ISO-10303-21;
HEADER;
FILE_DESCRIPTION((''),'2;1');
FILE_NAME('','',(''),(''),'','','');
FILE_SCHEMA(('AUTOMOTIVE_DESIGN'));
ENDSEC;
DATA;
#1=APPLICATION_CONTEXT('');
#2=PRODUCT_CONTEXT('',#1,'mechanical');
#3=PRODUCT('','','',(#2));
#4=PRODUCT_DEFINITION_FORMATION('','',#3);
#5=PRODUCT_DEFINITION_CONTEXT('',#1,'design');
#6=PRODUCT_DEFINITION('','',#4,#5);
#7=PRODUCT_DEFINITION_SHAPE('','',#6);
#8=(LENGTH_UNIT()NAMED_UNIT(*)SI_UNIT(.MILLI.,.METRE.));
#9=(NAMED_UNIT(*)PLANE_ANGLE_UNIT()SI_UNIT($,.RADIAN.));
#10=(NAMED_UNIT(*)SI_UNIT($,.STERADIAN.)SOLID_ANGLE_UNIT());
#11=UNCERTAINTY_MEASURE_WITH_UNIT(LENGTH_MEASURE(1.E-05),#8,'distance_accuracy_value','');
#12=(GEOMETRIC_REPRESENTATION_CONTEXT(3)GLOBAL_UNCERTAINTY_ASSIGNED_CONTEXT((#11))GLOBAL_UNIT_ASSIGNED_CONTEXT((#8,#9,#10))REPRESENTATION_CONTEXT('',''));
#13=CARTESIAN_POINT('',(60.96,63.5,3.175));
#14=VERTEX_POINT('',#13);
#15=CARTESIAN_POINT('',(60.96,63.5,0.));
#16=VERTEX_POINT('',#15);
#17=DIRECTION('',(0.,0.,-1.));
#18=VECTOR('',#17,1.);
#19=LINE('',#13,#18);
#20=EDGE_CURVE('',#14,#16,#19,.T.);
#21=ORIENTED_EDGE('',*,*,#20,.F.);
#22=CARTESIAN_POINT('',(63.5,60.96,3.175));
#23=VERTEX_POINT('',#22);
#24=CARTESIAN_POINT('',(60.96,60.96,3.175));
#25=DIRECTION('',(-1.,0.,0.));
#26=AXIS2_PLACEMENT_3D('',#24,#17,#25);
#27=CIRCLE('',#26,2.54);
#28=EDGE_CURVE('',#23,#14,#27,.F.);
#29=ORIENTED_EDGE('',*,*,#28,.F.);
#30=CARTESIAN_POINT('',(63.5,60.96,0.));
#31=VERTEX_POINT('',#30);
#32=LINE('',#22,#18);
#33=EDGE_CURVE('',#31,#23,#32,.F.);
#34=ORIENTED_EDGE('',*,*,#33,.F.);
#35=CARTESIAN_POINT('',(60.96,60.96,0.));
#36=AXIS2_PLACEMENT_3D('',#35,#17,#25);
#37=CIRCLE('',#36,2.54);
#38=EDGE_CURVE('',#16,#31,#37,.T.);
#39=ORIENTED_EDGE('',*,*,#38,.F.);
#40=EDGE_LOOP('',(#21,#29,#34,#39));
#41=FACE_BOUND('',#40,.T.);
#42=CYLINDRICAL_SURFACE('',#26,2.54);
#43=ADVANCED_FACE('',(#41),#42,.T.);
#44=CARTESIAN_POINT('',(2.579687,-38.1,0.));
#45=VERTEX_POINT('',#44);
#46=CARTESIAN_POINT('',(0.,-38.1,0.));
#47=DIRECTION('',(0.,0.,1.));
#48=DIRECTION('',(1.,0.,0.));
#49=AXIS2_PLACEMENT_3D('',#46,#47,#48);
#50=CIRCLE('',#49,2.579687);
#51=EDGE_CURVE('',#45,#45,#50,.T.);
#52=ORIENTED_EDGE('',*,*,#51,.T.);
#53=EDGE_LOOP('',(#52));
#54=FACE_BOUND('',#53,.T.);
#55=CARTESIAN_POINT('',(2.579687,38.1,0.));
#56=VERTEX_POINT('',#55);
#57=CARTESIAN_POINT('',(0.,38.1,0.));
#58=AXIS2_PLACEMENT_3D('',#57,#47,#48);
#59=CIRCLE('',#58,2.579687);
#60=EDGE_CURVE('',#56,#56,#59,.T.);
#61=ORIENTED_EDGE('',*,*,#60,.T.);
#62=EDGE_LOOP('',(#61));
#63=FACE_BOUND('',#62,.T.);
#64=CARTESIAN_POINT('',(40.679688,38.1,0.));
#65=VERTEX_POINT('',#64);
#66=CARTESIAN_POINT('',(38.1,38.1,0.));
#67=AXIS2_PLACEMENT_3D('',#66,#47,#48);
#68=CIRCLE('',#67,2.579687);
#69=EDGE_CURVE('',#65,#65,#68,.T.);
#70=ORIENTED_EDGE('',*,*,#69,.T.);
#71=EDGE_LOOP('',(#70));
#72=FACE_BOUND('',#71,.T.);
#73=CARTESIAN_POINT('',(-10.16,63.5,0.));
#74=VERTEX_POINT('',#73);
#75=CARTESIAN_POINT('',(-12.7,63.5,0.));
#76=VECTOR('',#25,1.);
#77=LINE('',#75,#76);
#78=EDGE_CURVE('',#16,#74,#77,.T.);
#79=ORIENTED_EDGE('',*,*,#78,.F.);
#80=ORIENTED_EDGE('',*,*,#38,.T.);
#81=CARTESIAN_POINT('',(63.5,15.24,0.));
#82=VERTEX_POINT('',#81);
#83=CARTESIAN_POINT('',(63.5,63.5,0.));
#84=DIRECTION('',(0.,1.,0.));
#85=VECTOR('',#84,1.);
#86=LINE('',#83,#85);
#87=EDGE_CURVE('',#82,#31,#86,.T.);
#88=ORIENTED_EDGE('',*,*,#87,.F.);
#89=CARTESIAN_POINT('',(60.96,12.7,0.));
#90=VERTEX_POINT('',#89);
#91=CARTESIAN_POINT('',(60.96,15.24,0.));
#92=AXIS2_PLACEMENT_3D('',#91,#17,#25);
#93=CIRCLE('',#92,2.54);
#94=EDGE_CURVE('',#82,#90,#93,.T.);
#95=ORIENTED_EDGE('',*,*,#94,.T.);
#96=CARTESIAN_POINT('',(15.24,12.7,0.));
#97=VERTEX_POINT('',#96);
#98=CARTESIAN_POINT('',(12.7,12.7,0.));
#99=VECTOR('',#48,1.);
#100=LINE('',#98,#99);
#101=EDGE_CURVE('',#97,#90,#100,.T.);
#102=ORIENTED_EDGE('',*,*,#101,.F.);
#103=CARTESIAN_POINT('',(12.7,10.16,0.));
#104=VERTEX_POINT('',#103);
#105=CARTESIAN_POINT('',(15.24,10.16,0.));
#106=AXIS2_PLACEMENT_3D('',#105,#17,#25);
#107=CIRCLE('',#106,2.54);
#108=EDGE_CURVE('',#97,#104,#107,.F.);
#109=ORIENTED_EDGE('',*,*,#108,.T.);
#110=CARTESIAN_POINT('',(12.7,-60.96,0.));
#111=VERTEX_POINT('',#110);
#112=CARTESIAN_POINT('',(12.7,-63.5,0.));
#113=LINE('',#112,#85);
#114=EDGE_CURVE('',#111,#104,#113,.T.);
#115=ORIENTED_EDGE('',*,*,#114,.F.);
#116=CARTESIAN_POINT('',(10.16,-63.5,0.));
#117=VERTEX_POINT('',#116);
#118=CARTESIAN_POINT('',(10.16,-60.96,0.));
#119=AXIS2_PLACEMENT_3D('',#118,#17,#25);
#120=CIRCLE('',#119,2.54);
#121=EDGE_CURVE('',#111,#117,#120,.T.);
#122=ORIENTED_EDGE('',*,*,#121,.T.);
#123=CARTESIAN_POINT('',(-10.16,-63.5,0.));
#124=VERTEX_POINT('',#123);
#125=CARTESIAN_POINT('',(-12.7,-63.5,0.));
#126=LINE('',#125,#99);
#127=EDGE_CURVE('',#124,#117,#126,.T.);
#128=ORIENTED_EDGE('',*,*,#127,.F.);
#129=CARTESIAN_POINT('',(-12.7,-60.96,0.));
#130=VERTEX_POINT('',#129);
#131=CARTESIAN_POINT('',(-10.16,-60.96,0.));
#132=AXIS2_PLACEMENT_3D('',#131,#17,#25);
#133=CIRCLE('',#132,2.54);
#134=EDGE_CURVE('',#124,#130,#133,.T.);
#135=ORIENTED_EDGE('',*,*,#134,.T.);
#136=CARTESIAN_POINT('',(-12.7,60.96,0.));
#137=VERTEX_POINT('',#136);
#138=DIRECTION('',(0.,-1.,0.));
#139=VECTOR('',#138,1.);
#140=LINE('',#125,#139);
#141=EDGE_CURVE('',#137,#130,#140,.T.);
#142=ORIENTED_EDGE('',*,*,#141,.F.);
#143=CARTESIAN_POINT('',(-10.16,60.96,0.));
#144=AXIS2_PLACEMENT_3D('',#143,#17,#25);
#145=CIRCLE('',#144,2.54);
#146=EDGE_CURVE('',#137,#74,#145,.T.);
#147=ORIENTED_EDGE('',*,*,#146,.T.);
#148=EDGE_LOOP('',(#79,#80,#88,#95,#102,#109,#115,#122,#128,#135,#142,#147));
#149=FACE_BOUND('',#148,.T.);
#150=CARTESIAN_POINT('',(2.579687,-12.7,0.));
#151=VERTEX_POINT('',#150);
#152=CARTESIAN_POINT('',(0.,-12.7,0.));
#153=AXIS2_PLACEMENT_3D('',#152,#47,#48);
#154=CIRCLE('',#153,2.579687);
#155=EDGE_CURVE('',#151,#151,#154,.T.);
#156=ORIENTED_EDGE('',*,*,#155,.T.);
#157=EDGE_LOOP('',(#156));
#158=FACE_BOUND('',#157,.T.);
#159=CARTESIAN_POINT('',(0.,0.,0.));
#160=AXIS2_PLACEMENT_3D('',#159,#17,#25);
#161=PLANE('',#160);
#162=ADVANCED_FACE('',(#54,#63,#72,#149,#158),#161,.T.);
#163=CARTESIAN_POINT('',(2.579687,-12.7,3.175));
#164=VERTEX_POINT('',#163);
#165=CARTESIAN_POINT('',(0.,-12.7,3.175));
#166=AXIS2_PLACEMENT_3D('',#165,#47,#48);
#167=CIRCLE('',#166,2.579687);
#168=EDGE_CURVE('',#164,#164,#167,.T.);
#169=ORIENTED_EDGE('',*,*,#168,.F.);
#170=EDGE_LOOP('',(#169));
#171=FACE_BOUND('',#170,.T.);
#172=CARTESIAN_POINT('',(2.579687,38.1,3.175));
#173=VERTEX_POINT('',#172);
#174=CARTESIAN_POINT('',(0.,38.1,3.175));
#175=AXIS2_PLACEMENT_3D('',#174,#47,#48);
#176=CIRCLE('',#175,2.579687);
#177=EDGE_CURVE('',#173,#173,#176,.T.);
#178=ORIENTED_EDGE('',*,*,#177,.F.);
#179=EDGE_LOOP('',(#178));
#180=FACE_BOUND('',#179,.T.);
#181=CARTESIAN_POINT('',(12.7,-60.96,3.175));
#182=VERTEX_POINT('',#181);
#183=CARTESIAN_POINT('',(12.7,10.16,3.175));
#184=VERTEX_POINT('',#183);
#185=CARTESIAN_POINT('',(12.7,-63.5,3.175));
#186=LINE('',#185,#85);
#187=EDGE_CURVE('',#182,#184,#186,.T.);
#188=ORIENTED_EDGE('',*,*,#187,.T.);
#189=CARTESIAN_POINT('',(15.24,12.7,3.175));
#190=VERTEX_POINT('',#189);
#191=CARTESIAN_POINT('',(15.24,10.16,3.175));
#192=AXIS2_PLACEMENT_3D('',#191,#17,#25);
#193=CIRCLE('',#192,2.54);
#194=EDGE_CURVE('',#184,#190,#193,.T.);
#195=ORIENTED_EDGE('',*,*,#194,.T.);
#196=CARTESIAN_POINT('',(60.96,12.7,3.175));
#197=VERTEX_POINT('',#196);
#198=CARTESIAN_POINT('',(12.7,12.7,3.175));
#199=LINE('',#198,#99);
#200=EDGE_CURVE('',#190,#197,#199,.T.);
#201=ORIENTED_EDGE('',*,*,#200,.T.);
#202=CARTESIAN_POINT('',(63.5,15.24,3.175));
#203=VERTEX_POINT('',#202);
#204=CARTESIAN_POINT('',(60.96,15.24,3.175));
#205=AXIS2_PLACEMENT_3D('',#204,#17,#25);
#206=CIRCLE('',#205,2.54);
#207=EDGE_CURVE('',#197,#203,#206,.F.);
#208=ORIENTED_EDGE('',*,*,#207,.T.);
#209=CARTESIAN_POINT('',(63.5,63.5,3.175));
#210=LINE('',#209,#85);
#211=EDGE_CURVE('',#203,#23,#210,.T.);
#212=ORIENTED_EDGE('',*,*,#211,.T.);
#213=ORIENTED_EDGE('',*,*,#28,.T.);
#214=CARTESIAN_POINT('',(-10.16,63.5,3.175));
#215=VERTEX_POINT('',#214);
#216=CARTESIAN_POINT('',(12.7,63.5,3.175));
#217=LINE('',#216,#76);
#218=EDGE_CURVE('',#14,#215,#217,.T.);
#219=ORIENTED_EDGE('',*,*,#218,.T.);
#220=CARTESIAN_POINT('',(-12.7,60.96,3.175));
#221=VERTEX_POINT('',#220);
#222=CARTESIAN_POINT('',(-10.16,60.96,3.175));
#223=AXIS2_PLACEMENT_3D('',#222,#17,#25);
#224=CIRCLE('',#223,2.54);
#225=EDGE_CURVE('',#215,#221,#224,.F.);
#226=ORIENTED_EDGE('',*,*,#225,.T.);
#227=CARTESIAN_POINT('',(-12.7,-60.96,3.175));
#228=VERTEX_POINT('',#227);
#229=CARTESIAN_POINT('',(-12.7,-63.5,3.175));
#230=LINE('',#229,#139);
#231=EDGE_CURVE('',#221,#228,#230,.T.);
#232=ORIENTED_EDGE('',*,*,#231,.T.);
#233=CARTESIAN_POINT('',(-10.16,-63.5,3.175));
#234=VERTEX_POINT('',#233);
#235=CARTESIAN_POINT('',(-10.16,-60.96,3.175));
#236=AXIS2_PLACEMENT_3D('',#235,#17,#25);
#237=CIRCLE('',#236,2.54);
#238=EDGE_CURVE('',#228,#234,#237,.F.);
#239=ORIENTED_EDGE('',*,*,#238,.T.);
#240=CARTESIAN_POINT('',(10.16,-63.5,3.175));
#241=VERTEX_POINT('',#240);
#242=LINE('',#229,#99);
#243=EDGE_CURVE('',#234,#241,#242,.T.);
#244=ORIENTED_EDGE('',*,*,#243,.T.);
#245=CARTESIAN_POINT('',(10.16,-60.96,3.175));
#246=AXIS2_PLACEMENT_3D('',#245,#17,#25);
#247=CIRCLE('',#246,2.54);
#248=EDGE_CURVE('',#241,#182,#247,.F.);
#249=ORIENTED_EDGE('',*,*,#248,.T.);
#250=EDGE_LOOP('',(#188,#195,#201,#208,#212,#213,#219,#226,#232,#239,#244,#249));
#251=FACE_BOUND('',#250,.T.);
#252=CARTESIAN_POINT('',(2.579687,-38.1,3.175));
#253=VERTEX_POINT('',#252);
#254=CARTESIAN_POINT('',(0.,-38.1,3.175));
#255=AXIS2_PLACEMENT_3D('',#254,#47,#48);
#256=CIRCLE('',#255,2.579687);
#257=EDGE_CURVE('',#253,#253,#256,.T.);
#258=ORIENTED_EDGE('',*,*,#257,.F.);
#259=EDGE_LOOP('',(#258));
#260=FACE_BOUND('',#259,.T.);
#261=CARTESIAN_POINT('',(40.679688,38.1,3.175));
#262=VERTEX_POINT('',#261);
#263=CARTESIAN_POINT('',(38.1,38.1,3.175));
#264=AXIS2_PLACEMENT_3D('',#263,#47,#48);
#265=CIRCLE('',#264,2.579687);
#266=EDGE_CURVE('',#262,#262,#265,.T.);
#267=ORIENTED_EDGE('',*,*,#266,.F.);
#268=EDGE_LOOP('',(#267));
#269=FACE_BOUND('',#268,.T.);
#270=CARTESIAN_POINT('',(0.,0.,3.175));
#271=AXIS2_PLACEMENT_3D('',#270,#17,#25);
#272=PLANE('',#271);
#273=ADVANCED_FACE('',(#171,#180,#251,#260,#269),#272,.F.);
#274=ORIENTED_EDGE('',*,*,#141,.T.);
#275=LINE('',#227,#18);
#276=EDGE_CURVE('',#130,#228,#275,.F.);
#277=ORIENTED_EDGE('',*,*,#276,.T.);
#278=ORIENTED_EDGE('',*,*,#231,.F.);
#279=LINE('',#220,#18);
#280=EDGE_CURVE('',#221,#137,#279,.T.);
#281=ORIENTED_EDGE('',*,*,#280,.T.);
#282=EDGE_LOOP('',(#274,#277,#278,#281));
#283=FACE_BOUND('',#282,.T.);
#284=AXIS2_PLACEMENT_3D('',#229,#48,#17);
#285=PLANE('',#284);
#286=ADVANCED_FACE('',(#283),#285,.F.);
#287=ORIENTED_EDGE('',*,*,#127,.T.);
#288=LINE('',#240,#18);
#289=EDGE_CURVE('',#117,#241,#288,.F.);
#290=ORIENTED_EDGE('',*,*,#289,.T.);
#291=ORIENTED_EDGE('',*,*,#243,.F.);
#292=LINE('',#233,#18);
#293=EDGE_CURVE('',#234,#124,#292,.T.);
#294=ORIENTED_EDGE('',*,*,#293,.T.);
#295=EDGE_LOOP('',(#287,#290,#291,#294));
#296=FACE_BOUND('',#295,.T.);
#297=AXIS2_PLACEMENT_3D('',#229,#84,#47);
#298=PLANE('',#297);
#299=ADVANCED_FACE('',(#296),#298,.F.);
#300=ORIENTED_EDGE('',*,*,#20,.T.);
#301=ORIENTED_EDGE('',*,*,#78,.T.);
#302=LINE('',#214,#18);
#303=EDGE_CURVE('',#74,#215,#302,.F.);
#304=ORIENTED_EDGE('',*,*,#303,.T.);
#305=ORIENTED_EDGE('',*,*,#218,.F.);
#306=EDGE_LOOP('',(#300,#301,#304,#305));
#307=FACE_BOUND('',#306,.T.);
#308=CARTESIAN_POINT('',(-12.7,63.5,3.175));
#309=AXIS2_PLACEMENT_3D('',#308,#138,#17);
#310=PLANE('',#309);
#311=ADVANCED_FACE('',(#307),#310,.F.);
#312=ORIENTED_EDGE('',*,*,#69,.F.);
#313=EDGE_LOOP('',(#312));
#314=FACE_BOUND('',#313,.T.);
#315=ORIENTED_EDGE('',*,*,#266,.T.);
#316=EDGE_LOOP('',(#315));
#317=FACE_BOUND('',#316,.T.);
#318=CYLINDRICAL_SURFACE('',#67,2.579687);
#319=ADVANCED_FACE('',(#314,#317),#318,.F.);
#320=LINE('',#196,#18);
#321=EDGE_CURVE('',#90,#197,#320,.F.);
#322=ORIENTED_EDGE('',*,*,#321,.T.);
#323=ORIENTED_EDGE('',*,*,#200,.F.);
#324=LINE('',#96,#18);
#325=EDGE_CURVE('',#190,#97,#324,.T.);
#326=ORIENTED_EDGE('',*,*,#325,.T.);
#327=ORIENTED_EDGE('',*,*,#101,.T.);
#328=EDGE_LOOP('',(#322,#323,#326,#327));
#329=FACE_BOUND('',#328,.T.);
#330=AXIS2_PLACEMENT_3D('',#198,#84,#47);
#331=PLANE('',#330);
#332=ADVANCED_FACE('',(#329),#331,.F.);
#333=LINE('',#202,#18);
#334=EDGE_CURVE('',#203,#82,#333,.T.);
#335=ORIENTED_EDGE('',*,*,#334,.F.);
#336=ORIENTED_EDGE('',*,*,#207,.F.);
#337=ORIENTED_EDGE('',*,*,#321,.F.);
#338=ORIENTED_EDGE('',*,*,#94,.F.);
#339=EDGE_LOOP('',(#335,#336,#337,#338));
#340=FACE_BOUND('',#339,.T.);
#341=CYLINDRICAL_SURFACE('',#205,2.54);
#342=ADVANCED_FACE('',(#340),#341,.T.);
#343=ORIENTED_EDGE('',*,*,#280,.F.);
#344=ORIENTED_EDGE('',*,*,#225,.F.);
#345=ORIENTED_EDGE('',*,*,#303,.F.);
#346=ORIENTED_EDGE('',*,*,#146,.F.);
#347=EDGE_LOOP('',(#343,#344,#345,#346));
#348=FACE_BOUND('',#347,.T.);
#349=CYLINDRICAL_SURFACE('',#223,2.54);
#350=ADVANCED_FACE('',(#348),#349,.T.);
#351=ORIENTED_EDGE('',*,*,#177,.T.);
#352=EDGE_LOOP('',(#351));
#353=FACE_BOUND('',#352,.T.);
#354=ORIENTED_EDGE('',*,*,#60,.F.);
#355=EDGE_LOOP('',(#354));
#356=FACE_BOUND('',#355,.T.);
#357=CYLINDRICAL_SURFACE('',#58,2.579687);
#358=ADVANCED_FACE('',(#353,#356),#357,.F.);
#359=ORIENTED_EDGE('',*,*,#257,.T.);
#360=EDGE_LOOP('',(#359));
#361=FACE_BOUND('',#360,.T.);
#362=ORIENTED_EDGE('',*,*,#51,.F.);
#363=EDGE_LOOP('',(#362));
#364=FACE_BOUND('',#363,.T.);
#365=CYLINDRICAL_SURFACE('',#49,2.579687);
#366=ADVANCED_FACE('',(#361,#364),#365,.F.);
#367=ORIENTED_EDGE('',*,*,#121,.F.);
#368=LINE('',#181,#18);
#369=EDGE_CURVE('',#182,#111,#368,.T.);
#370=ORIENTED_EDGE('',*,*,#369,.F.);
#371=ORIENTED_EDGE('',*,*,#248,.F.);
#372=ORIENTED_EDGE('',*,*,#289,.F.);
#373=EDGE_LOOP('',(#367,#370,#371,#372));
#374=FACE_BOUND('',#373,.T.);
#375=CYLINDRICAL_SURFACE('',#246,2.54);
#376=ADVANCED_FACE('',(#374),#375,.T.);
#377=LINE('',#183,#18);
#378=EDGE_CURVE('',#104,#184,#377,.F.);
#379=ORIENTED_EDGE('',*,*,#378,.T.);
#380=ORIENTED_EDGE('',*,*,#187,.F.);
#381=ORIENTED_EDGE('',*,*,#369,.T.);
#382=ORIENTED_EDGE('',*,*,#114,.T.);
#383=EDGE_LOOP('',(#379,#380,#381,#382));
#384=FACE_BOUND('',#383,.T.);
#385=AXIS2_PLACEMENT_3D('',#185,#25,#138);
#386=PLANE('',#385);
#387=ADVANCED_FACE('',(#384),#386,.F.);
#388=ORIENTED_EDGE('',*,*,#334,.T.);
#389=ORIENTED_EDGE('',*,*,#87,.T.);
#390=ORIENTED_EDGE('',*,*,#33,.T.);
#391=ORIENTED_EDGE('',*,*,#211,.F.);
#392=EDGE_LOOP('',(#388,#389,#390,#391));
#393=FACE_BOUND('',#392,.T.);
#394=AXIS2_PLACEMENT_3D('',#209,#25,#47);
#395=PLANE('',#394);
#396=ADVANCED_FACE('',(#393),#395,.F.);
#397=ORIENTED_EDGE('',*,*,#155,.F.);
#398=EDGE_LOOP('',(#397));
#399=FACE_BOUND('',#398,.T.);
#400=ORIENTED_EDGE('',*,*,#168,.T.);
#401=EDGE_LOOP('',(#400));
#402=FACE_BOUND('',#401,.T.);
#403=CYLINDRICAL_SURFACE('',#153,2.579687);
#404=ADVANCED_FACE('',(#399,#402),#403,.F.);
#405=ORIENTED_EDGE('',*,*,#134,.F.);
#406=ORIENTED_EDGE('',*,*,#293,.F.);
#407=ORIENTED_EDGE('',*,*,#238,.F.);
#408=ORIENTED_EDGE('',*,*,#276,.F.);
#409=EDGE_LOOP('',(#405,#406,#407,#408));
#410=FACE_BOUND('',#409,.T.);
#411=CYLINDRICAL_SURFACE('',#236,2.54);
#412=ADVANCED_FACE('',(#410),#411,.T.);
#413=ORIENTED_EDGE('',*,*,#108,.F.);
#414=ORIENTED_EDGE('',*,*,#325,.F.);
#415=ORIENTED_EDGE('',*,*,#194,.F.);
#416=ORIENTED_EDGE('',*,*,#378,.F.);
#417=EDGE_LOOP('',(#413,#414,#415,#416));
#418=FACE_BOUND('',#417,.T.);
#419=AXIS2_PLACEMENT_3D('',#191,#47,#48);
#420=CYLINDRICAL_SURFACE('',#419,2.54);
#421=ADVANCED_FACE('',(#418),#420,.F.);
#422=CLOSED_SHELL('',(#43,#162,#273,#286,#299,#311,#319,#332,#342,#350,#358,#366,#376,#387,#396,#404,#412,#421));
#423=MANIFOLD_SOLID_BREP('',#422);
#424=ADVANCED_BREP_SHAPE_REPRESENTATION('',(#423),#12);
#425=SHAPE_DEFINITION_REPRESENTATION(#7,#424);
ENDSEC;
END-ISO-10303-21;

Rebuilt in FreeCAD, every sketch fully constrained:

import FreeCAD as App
import Part
import Sketcher

V = App.Vector
Q = App.Units.Quantity


def edges_at(feature, points):
    """Names of the edges that pass closest to the given points."""
    edges = feature.Shape.Edges
    near = lambda p: min(range(len(edges)), key=lambda i: edges[i].distToShape(Part.Vertex(*p))[0])
    return sorted({f"Edge{near(p) + 1}" for p in points})


def add_polygon(sketch, points):
    """Adds a closed chain of lines whose ends are joined by coincident constraints."""
    first, n = sketch.GeometryCount, len(points)
    for a, b in zip(points, points[1:] + points[:1]):
        sketch.addGeometry(Part.LineSegment(App.Vector(*a, 0), App.Vector(*b, 0)), False)
    for i in range(n):
        sketch.addConstraint(Sketcher.Constraint("Coincident", first + i, 2, first + (i + 1) % n, 1))

doc = App.newDocument("Part")
body = doc.addObject("PartDesign::Body", "Body")

sketch1 = doc.addObject("Sketcher::SketchObject", "Sketch")
body.addObject(sketch1)
sketch1.AttachmentSupport = (doc.XY_Plane, [""])
sketch1.MapMode = "FlatFace"
add_polygon(sketch1, [(-13, -64), (13, -64), (13, 13), (64, 13), (64, 64), (-13, 64)])
sketch1.addConstraint(Sketcher.Constraint("Horizontal", 0))
sketch1.addConstraint(Sketcher.Constraint("Vertical", 1))
sketch1.addConstraint(Sketcher.Constraint("Horizontal", 2))
sketch1.addConstraint(Sketcher.Constraint("Vertical", 3))
sketch1.addConstraint(Sketcher.Constraint("Horizontal", 4))
sketch1.addConstraint(Sketcher.Constraint("Vertical", 5))
sketch1.addConstraint(Sketcher.Constraint("Symmetric", 0, 2, 4, 2, -1, 1))
sketch1.addConstraint(Sketcher.Constraint("Equal", 4, 1))
sketch1.addConstraint(Sketcher.Constraint("Equal", 2, 3))
sketch1.addConstraint(Sketcher.Constraint("DistanceX", 0, 1, 0, 2, Q("1 in")))
sketch1.addConstraint(Sketcher.Constraint("DistanceX", 2, 1, 2, 2, Q("2 in")))
pad1 = doc.addObject("PartDesign::Pad", "Pad")
body.addObject(pad1)
pad1.Profile = sketch1
pad1.Length = Q("0.125 in")

sketch2 = doc.addObject("Sketcher::SketchObject", "Sketch001")
body.addObject(sketch2)
sketch2.AttachmentSupport = (doc.XY_Plane, [""])
sketch2.MapMode = "FlatFace"
sketch2.AttachmentOffset = App.Placement(V(0, 0, 0.125 * 25.4), App.Rotation())
sketch2.addGeometry(Part.Circle(V(0, 38.1, 0), V(0, 0, 1), 2.6), False)
sketch2.addGeometry(Part.Circle(V(38.1, 38.1, 0), V(0, 0, 1), 2.6), False)
sketch2.addGeometry(Part.Circle(V(0, -38.1, 0), V(0, 0, 1), 2.6), False)
sketch2.addGeometry(Part.Circle(V(0, -12.7, 0), V(0, 0, 1), 2.6), False)
sketch2.addConstraint(Sketcher.Constraint("Equal", 0, 1))
sketch2.addConstraint(Sketcher.Constraint("Equal", 1, 2))
sketch2.addConstraint(Sketcher.Constraint("Equal", 2, 3))
sketch2.addConstraint(Sketcher.Constraint("Symmetric", 0, 3, 2, 3, -1, 1))
sketch2.addConstraint(Sketcher.Constraint("PointOnObject", 0, 3, -2))
sketch2.addConstraint(Sketcher.Constraint("PointOnObject", 3, 3, -2))
sketch2.addConstraint(Sketcher.Constraint("Horizontal", 0, 3, 1, 3))
sketch2.addConstraint(Sketcher.Constraint("Diameter", 0, Q("0.203125 in")))
sketch2.addConstraint(Sketcher.Constraint("DistanceY", 2, 3, 0, 3, Q("3 in")))
sketch2.addConstraint(Sketcher.Constraint("DistanceY", 2, 3, 3, 3, Q("1 in")))
sketch2.addConstraint(Sketcher.Constraint("DistanceX", -1, 1, 1, 3, Q("1.5 in")))
pocket1 = doc.addObject("PartDesign::Pocket", "Pocket")
body.addObject(pocket1)
pocket1.Profile = sketch2
pocket1.Length = Q("0.125 in")
doc.recompute()

fillet = doc.addObject("PartDesign::Fillet", "Fillet")
body.addObject(fillet)
fillet.Base = (pocket1, edges_at(pocket1, [
    (63.5, 63.5, 1.587),
    (63.5, 12.7, 1.587),
    (12.7, 12.7, 1.587),
    (12.7, -63.5, 1.587),
    (-12.7, -63.5, 1.587),
    (-12.7, 63.5, 1.587),
]))
fillet.Radius = Q("0.1 in")

doc.recompute()
